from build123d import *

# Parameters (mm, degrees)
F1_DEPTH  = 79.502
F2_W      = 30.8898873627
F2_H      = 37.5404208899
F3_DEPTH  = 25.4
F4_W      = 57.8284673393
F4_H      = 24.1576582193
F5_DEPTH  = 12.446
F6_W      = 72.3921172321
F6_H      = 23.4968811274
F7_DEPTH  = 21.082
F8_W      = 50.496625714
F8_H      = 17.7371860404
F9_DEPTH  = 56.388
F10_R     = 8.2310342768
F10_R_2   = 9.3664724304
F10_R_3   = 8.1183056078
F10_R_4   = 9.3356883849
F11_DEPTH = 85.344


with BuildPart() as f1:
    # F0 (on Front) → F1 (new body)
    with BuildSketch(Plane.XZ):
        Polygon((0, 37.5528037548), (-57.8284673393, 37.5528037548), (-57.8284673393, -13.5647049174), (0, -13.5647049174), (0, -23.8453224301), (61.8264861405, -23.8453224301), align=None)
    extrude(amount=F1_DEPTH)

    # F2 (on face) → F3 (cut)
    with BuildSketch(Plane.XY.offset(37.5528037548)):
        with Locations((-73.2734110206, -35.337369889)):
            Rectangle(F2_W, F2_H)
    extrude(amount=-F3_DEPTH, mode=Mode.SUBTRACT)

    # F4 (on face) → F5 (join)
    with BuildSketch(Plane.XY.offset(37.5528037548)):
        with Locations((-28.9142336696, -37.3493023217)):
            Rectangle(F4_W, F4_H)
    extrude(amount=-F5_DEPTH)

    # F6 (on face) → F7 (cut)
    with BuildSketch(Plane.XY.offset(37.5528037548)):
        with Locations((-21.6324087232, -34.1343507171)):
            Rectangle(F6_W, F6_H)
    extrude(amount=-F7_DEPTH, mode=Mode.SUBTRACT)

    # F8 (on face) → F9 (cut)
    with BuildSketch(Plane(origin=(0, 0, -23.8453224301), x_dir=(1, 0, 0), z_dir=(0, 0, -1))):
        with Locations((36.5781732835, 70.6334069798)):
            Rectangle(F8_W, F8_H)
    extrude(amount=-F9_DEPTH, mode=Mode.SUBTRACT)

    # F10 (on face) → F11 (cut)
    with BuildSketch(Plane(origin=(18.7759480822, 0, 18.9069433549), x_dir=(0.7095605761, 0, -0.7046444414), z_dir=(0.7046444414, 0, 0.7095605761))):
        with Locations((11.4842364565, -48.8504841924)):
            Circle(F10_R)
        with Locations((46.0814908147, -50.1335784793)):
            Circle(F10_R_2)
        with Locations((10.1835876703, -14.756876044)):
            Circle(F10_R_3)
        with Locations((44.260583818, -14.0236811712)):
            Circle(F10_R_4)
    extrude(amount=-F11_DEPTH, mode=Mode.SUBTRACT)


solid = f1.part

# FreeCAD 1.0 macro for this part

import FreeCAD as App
import Part
import Sketcher

V = App.Vector
Q = App.Units.Quantity


def add_polygon(sketch, points):
    """Adds a closed chain of lines whose ends are joined by coincident constraints."""
    first, n = sketch.GeometryCount, len(points)
    for a, b in zip(points, points[1:] + points[:1]):
        sketch.addGeometry(Part.LineSegment(App.Vector(*a, 0), App.Vector(*b, 0)), False)
    for i in range(n):
        sketch.addConstraint(Sketcher.Constraint("Coincident", first + i, 2, first + (i + 1) % n, 1))

doc = App.newDocument("Part")
body = doc.addObject("PartDesign::Body", "Body")

sketch1 = body.newObject("Sketcher::SketchObject", "Sketch")
sketch1.AttachmentSupport = (doc.getObject("XZ_Plane"), [""])
sketch1.MapMode = "FlatFace"
add_polygon(sketch1, [(0, 38), (-58, 38), (-58, -14), (0, -14), (0, -24), (62, -24)])
sketch1.addConstraint(Sketcher.Constraint("Horizontal", 0))
sketch1.addConstraint(Sketcher.Constraint("Vertical", 1))
sketch1.addConstraint(Sketcher.Constraint("Horizontal", 2))
sketch1.addConstraint(Sketcher.Constraint("Vertical", 3))
sketch1.addConstraint(Sketcher.Constraint("Horizontal", 4))
sketch1.addConstraint(Sketcher.Constraint("PointOnObject", 2, 2, -2))
sketch1.addConstraint(Sketcher.Constraint("PointOnObject", 5, 2, -2))
sketch1.addConstraint(Sketcher.Constraint("DistanceY", 1, 2, 1, 1, Q("51.117509 mm")))
sketch1.addConstraint(Sketcher.Constraint("DistanceX", 0, 2, 0, 1, Q("57.828467 mm")))
sketch1.addConstraint(Sketcher.Constraint("DistanceX", 4, 1, 4, 2, Q("61.826486 mm")))
sketch1.addConstraint(Sketcher.Constraint("DistanceY", 3, 2, 3, 1, Q("10.280618 mm")))
sketch1.addConstraint(Sketcher.Constraint("DistanceY", -1, 1, 0, 2, Q("37.552804 mm")))
pad1 = body.newObject("PartDesign::Pad", "Pad")
pad1.Profile = sketch1
pad1.Length = Q("3.13 in")

sketch2 = body.newObject("Sketcher::SketchObject", "Sketch001")
sketch2.AttachmentSupport = (doc.getObject("XY_Plane"), [""])
sketch2.MapMode = "FlatFace"
sketch2.AttachmentOffset = App.Placement(V(0, 0, 37.552804), App.Rotation())
add_polygon(sketch2, [(-89, -17), (-89, -54), (-58, -54), (-58, -17)])
sketch2.addConstraint(Sketcher.Constraint("Vertical", 0))
sketch2.addConstraint(Sketcher.Constraint("Horizontal", 1))
sketch2.addConstraint(Sketcher.Constraint("Vertical", 2))
sketch2.addConstraint(Sketcher.Constraint("Horizontal", 3))
sketch2.addConstraint(Sketcher.Constraint("DistanceY", 0, 2, 0, 1, Q("37.540421 mm")))
sketch2.addConstraint(Sketcher.Constraint("DistanceX", 1, 1, 1, 2, Q("30.889887 mm")))
sketch2.addConstraint(Sketcher.Constraint("DistanceY", 0, 2, -1, 1, Q("54.10758 mm")))
sketch2.addConstraint(Sketcher.Constraint("DistanceX", 0, 2, -1, 1, Q("88.718355 mm")))
pocket1 = body.newObject("PartDesign::Pocket", "Pocket")
pocket1.Profile = sketch2
pocket1.Length = Q("1 in")

sketch3 = body.newObject("Sketcher::SketchObject", "Sketch002")
sketch3.AttachmentSupport = (doc.getObject("XY_Plane"), [""])
sketch3.MapMode = "FlatFace"
sketch3.AttachmentOffset = App.Placement(V(0, 0, 37.552804), App.Rotation())
add_polygon(sketch3, [(-58, -25), (-58, -49), (0, -49), (0, -25)])
sketch3.addConstraint(Sketcher.Constraint("Vertical", 0))
sketch3.addConstraint(Sketcher.Constraint("Horizontal", 1))
sketch3.addConstraint(Sketcher.Constraint("Vertical", 2))
sketch3.addConstraint(Sketcher.Constraint("Horizontal", 3))
sketch3.addConstraint(Sketcher.Constraint("PointOnObject", 1, 2, -2))
sketch3.addConstraint(Sketcher.Constraint("DistanceY", 0, 2, 0, 1, Q("24.157658 mm")))
sketch3.addConstraint(Sketcher.Constraint("DistanceX", 1, 1, 1, 2, Q("57.828467 mm")))
sketch3.addConstraint(Sketcher.Constraint("DistanceY", 0, 2, -1, 1, Q("49.428131 mm")))
pad2 = body.newObject("PartDesign::Pad", "Pad001")
pad2.Profile = sketch3
pad2.Length = Q("0.49 in")
pad2.Reversed = True

sketch4 = body.newObject("Sketcher::SketchObject", "Sketch003")
sketch4.AttachmentSupport = (doc.getObject("XY_Plane"), [""])
sketch4.MapMode = "FlatFace"
sketch4.AttachmentOffset = App.Placement(V(0, 0, 37.552804), App.Rotation())
add_polygon(sketch4, [(-58, -22), (-58, -46), (15, -46), (15, -22)])
sketch4.addConstraint(Sketcher.Constraint("Vertical", 0))
sketch4.addConstraint(Sketcher.Constraint("Horizontal", 1))
sketch4.addConstraint(Sketcher.Constraint("Vertical", 2))
sketch4.addConstraint(Sketcher.Constraint("Horizontal", 3))
sketch4.addConstraint(Sketcher.Constraint("DistanceY", 0, 2, 0, 1, Q("23.496881 mm")))
sketch4.addConstraint(Sketcher.Constraint("DistanceX", 1, 1, 1, 2, Q("72.392117 mm")))
sketch4.addConstraint(Sketcher.Constraint("DistanceY", 0, 2, -1, 1, Q("45.882791 mm")))
sketch4.addConstraint(Sketcher.Constraint("DistanceX", -1, 1, 1, 2, Q("14.56365 mm")))
pocket2 = body.newObject("PartDesign::Pocket", "Pocket001")
pocket2.Profile = sketch4
pocket2.Length = Q("0.83 in")

sketch5 = body.newObject("Sketcher::SketchObject", "Sketch004")
sketch5.AttachmentSupport = (doc.getObject("XY_Plane"), [""])
sketch5.MapMode = "FlatFace"
sketch5.AttachmentOffset = App.Placement(V(0, 0, -23.845322), App.Rotation())
add_polygon(sketch5, [(11, -80), (11, -62), (62, -62), (62, -80)])
sketch5.addConstraint(Sketcher.Constraint("Vertical", 0))
sketch5.addConstraint(Sketcher.Constraint("Horizontal", 1))
sketch5.addConstraint(Sketcher.Constraint("Vertical", 2))
sketch5.addConstraint(Sketcher.Constraint("Horizontal", 3))
sketch5.addConstraint(Sketcher.Constraint("DistanceY", 2, 2, -1, 1, Q("3.13 in")))
sketch5.addConstraint(Sketcher.Constraint("DistanceX", 1, 1, 1, 2, Q("50.496626 mm")))
sketch5.addConstraint(Sketcher.Constraint("DistanceY", 0, 1, 0, 2, Q("17.737186 mm")))
sketch5.addConstraint(Sketcher.Constraint("DistanceX", -1, 1, 0, 2, Q("11.32986 mm")))
pocket3 = body.newObject("PartDesign::Pocket", "Pocket002")
pocket3.Profile = sketch5
pocket3.Length = Q("2.22 in")
pocket3.Reversed = True

sketch6 = body.newObject("Sketcher::SketchObject", "Sketch005")
sketch6.Placement = App.Placement(V(18.775948, 0, 18.906943), App.Rotation(V(0.709560576, 0, -0.704644441), V(0, 0.999999999, 0), V(0.704644441, 0, 0.709560576), "ZXY"))
sketch6.addGeometry(Part.Circle(V(11, -49, 0), V(0, 0, 1), 8), False)
sketch6.addGeometry(Part.Circle(V(46, -50, 0), V(0, 0, 1), 9), False)
sketch6.addGeometry(Part.Circle(V(10, -15, 0), V(0, 0, 1), 8), False)
sketch6.addGeometry(Part.Circle(V(44, -14, 0), V(0, 0, 1), 9), False)
sketch6.addConstraint(Sketcher.Constraint("Diameter", 0, Q("16.462069 mm")))
sketch6.addConstraint(Sketcher.Constraint("Diameter", 2, Q("16.236611 mm")))
sketch6.addConstraint(Sketcher.Constraint("Diameter", 1, Q("18.732945 mm")))
sketch6.addConstraint(Sketcher.Constraint("Diameter", 3, Q("18.671377 mm")))
sketch6.addConstraint(Sketcher.Constraint("DistanceX", -1, 1, 1, 3, Q("46.081491 mm")))
sketch6.addConstraint(Sketcher.Constraint("DistanceY", 1, 3, -1, 1, Q("50.133578 mm")))
sketch6.addConstraint(Sketcher.Constraint("DistanceY", 3, 3, -1, 1, Q("14.023681 mm")))
sketch6.addConstraint(Sketcher.Constraint("DistanceX", 2, 3, 0, 3, Q("1.300649 mm")))
sketch6.addConstraint(Sketcher.Constraint("DistanceY", 0, 3, 2, 3, Q("34.093608 mm")))
sketch6.addConstraint(Sketcher.Constraint("DistanceX", -1, 1, 0, 3, Q("11.484236 mm")))
sketch6.addConstraint(Sketcher.Constraint("DistanceY", 0, 3, -1, 1, Q("48.850484 mm")))
sketch6.addConstraint(Sketcher.Constraint("DistanceX", -1, 1, 3, 3, Q("44.260584 mm")))
pocket4 = body.newObject("PartDesign::Pocket", "Pocket003")
pocket4.Profile = sketch6
pocket4.Length = Q("3.36 in")

doc.recompute()
